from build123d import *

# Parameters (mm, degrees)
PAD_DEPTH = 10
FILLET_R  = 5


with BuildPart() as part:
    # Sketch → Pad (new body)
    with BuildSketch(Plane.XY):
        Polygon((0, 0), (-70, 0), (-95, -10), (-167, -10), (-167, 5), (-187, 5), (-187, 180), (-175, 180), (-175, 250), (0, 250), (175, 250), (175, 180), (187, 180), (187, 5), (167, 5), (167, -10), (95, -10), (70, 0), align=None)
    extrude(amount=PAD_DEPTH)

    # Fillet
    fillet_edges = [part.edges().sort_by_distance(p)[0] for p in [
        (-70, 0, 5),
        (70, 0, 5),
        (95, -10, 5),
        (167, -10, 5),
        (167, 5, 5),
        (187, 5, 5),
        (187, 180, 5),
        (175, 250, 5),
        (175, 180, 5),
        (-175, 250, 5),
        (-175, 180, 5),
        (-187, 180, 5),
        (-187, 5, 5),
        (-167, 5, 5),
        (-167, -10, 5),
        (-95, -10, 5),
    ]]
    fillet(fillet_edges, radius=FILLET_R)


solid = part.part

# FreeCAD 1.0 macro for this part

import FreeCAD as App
import Part
import Sketcher
from FreeCAD import Vector


def edges_at(feature, points):
    """Names of the edges that pass closest to the given points."""
    edges = feature.Shape.Edges
    near = lambda p: min(range(len(edges)), key=lambda i: edges[i].distToShape(Part.Vertex(*p))[0])
    return sorted({f"Edge{near(p) + 1}" for p in points})

doc = App.newDocument("Part")
body = doc.addObject("PartDesign::Body", "Body")

# Sketch on XY plane
sketch1 = body.newObject("Sketcher::SketchObject", "Sketch")
sketch1.AttachmentSupport = (doc.getObject("XY_Plane"), [""])
sketch1.MapMode = "FlatFace"
sketch1.addGeometry([
    Part.LineSegment(Vector(-70, 0, 0), Vector(70, 0, 0)),  # 0
    Part.LineSegment(Vector(70, 0, 0), Vector(95, -10, 0)),  # 1
    Part.LineSegment(Vector(95, -10, 0), Vector(167, -10, 0)),  # 2
    Part.LineSegment(Vector(167, -10, 0), Vector(167, 5, 0)),  # 3
    Part.LineSegment(Vector(167, 5, 0), Vector(187, 5, 0)),  # 4
    Part.LineSegment(Vector(187, 5, 0), Vector(187, 180, 0)),  # 5
    Part.LineSegment(Vector(187, 180, 0), Vector(175, 180, 0)),  # 6
    Part.LineSegment(Vector(175, 180, 0), Vector(175, 250, 0)),  # 7
    Part.LineSegment(Vector(175, 250, 0), Vector(-175, 250, 0)),  # 8
    Part.LineSegment(Vector(-175, 250, 0), Vector(-175, 180, 0)),  # 9
    Part.LineSegment(Vector(-175, 180, 0), Vector(-187, 180, 0)),  # 10
    Part.LineSegment(Vector(-187, 180, 0), Vector(-187, 5, 0)),  # 11
    Part.LineSegment(Vector(-187, 5, 0), Vector(-167, 5, 0)),  # 12
    Part.LineSegment(Vector(-167, 5, 0), Vector(-167, -10, 0)),  # 13
    Part.LineSegment(Vector(-167, -10, 0), Vector(-95, -10, 0)),  # 14
    Part.LineSegment(Vector(-95, -10, 0), Vector(-70, 0, 0)),  # 15
], False)
sketch1.addConstraint([
    Sketcher.Constraint("Coincident", 0, 2, 1, 1),
    Sketcher.Constraint("Coincident", 1, 2, 2, 1),
    Sketcher.Constraint("Coincident", 2, 2, 3, 1),
    Sketcher.Constraint("Coincident", 3, 2, 4, 1),
    Sketcher.Constraint("Coincident", 4, 2, 5, 1),
    Sketcher.Constraint("Coincident", 5, 2, 6, 1),
    Sketcher.Constraint("Coincident", 6, 2, 7, 1),
    Sketcher.Constraint("Coincident", 7, 2, 8, 1),
    Sketcher.Constraint("Coincident", 8, 2, 9, 1),
    Sketcher.Constraint("Coincident", 9, 2, 10, 1),
    Sketcher.Constraint("Coincident", 10, 2, 11, 1),
    Sketcher.Constraint("Coincident", 11, 2, 12, 1),
    Sketcher.Constraint("Coincident", 12, 2, 13, 1),
    Sketcher.Constraint("Coincident", 13, 2, 14, 1),
    Sketcher.Constraint("Coincident", 14, 2, 15, 1),
    Sketcher.Constraint("Coincident", 15, 2, 0, 1),
    Sketcher.Constraint("Horizontal", 0),
    Sketcher.Constraint("Horizontal", 2),
    Sketcher.Constraint("Vertical", 3),
    Sketcher.Constraint("Horizontal", 4),
    Sketcher.Constraint("Vertical", 5),
    Sketcher.Constraint("Horizontal", 6),
    Sketcher.Constraint("Vertical", 7),
    Sketcher.Constraint("Horizontal", 8),
    Sketcher.Constraint("Vertical", 9),
    Sketcher.Constraint("Horizontal", 10),
    Sketcher.Constraint("Vertical", 11),
    Sketcher.Constraint("Horizontal", 12),
    Sketcher.Constraint("Vertical", 13),
    Sketcher.Constraint("Horizontal", 14),
    Sketcher.Constraint("Symmetric", 0, 2, 15, 2, -1, 1),
    Sketcher.Constraint("Symmetric", 6, 2, 9, 2, -2),
    Sketcher.Constraint("Symmetric", 4, 2, 11, 2, -2),
    Sketcher.Constraint("Symmetric", 2, 2, 13, 2, -2),
    Sketcher.Constraint("Equal", 2, 14),
    Sketcher.Constraint("DistanceX", 0, 1, 0, 2, 140.0),
    Sketcher.Constraint("DistanceX", 2, 1, 2, 2, 72.0),
    Sketcher.Constraint("DistanceX", 4, 1, 4, 2, 20.0),
    Sketcher.Constraint("DistanceX", 6, 2, 6, 1, 12.0),
    Sketcher.Constraint("DistanceX", 8, 2, 8, 1, 350.0),
    Sketcher.Constraint("DistanceY", 3, 1, 3, 2, 15.0),
    Sketcher.Constraint("DistanceY", 5, 1, 5, 2, 175.0),
    Sketcher.Constraint("DistanceY", 7, 1, 7, 2, 70.0),
    Sketcher.Constraint("DistanceY", 1, 2, -1, 1, 10.0),
])
pad1 = body.newObject("PartDesign::Pad", "Pad")
pad1.Profile = sketch1
pad1.Length = 10
doc.recompute()

fillet = body.newObject("PartDesign::Fillet", "Fillet")
fillet.Base = (pad1, edges_at(pad1, [
    (-70, 0, 5),
    (70, 0, 5),
    (95, -10, 5),
    (167, -10, 5),
    (167, 5, 5),
    (187, 5, 5),
    (187, 180, 5),
    (175, 250, 5),
    (175, 180, 5),
    (-175, 250, 5),
    (-175, 180, 5),
    (-187, 180, 5),
    (-187, 5, 5),
    (-167, 5, 5),
    (-167, -10, 5),
    (-95, -10, 5),
]))
fillet.Radius = 5

doc.recompute()
